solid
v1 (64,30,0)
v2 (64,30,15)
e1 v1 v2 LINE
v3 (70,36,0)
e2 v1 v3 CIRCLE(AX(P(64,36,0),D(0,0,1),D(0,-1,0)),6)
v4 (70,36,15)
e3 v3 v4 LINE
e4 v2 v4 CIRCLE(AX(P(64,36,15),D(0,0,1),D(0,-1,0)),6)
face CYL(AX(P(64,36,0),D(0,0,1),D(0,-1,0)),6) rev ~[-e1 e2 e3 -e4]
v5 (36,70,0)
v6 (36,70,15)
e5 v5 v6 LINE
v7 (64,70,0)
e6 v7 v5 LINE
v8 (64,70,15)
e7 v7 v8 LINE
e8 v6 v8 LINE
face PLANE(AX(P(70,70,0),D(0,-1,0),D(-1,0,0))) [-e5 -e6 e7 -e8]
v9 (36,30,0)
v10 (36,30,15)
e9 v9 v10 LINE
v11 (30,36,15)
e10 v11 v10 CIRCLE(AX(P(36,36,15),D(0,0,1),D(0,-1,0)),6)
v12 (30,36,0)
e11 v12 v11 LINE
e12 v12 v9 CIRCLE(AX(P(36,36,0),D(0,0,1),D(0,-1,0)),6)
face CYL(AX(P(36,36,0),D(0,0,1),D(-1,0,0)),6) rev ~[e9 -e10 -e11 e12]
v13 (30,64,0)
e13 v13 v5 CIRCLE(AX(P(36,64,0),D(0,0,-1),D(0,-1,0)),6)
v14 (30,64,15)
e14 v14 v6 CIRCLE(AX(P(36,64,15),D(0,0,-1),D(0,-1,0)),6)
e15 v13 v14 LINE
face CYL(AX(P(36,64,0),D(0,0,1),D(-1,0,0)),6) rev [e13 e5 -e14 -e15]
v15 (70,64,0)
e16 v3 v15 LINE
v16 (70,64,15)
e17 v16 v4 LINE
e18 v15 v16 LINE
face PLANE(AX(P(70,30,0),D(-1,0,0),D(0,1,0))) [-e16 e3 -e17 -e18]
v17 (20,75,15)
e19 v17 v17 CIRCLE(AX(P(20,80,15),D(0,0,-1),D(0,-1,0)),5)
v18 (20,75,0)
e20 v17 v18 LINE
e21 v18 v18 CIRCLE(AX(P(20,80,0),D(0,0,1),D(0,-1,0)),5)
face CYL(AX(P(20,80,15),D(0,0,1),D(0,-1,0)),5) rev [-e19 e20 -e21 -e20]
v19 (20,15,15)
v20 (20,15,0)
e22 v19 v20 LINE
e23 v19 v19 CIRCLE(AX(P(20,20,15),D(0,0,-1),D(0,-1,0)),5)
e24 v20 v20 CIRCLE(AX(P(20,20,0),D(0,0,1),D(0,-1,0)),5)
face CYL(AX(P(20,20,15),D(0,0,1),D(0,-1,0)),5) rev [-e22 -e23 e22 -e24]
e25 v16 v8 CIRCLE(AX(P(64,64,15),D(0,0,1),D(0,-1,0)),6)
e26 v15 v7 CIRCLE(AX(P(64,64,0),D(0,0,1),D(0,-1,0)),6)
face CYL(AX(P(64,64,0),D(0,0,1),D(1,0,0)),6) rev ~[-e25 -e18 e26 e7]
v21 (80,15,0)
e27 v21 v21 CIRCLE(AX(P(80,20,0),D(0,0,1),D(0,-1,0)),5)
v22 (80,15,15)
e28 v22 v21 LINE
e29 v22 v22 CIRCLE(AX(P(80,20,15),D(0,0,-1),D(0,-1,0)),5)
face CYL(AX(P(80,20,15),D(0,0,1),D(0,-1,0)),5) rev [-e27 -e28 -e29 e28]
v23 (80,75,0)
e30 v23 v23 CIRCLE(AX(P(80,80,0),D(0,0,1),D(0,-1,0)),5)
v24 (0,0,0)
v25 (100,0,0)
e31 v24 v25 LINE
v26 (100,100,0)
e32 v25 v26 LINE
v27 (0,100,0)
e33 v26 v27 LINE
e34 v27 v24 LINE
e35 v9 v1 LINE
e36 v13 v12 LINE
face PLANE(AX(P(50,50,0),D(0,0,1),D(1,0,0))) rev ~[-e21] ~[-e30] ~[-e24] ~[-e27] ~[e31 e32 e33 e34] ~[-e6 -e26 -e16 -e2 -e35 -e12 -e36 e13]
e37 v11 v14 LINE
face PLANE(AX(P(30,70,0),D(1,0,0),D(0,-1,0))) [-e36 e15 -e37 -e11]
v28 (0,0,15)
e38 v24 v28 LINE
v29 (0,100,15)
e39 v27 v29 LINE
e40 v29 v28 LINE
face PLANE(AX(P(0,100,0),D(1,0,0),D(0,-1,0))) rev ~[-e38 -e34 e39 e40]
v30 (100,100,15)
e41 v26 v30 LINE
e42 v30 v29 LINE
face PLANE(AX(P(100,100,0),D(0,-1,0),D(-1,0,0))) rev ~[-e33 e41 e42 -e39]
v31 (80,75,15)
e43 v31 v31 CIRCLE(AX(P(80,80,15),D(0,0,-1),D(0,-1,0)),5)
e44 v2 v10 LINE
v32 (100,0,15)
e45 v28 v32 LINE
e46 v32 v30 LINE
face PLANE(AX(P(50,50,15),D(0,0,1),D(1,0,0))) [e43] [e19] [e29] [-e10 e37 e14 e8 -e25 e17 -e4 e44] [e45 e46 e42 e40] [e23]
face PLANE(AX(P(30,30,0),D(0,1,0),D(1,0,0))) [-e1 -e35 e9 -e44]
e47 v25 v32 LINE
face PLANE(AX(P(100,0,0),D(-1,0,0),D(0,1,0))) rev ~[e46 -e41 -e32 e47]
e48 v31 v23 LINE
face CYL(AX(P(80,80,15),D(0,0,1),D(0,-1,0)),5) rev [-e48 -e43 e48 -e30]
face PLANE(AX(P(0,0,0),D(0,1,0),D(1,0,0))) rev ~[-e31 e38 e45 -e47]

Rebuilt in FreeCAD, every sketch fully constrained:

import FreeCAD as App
import Part
import Sketcher

V = App.Vector
Q = App.Units.Quantity


def edges_at(feature, points):
    """Names of the edges that pass closest to the given points."""
    edges = feature.Shape.Edges
    near = lambda p: min(range(len(edges)), key=lambda i: edges[i].distToShape(Part.Vertex(*p))[0])
    return sorted({f"Edge{near(p) + 1}" for p in points})

doc = App.newDocument("Part")
body = doc.addObject("PartDesign::Body", "Body")

sketch1 = doc.addObject("Sketcher::SketchObject", "Sketch")
body.addObject(sketch1)
sketch1.AttachmentSupport = (doc.XY_Plane, [""])
sketch1.MapMode = "FlatFace"
sketch1.addGeometry(Part.LineSegment(V(0, 100, 0), V(0, 0, 0)), False)
sketch1.addGeometry(Part.LineSegment(V(0, 0, 0), V(100, 0, 0)), False)
sketch1.addGeometry(Part.LineSegment(V(100, 0, 0), V(100, 100, 0)), False)
sketch1.addGeometry(Part.LineSegment(V(100, 100, 0), V(0, 100, 0)), False)
sketch1.addConstraint(Sketcher.Constraint("Coincident", 0, 2, 1, 1))
sketch1.addConstraint(Sketcher.Constraint("Coincident", 1, 2, 2, 1))
sketch1.addConstraint(Sketcher.Constraint("Coincident", 2, 2, 3, 1))
sketch1.addConstraint(Sketcher.Constraint("Coincident", 3, 2, 0, 1))
sketch1.addConstraint(Sketcher.Constraint("Vertical", 0))
sketch1.addConstraint(Sketcher.Constraint("Horizontal", 1))
sketch1.addConstraint(Sketcher.Constraint("Vertical", 2))
sketch1.addConstraint(Sketcher.Constraint("Horizontal", 3))
sketch1.addConstraint(Sketcher.Constraint("Coincident", 0, 2, -1, 1))
sketch1.addConstraint(Sketcher.Constraint("Equal", 3, 0))
sketch1.addConstraint(Sketcher.Constraint("DistanceX", 1, 1, 1, 2, Q("100 mm")))
pad1 = doc.addObject("PartDesign::Pad", "Pad")
body.addObject(pad1)
pad1.Profile = sketch1
pad1.Length = 15

sketch2 = doc.addObject("Sketcher::SketchObject", "Sketch001")
body.addObject(sketch2)
sketch2.AttachmentSupport = (doc.XY_Plane, [""])
sketch2.MapMode = "FlatFace"
sketch2.AttachmentOffset = App.Placement(V(0, 0, 15), App.Rotation())
sketch2.addGeometry(Part.Circle(V(80, 80, 0), V(0, 0, 1), 5), False)
sketch2.addConstraint(Sketcher.Constraint("Diameter", 0, Q("10 mm")))
sketch2.addConstraint(Sketcher.Constraint("DistanceX", -1, 1, 0, 3, Q("80 mm")))
sketch2.addConstraint(Sketcher.Constraint("DistanceY", -1, 1, 0, 3, Q("80 mm")))
doc.recompute()
hole = doc.addObject("PartDesign::Hole", "Hole")
body.addObject(hole)
hole.Profile = sketch2
hole.ThreadType = "None"
hole.Diameter = 10
hole.DepthType = "ThroughAll"

sketch3 = doc.addObject("Sketcher::SketchObject", "Sketch002")
body.addObject(sketch3)
sketch3.AttachmentSupport = (doc.XY_Plane, [""])
sketch3.MapMode = "FlatFace"
sketch3.AttachmentOffset = App.Placement(V(0, 0, 15), App.Rotation())
sketch3.addGeometry(Part.Circle(V(80, 20, 0), V(0, 0, 1), 5), False)
sketch3.addConstraint(Sketcher.Constraint("Diameter", 0, Q("10 mm")))
sketch3.addConstraint(Sketcher.Constraint("DistanceX", -1, 1, 0, 3, Q("80 mm")))
sketch3.addConstraint(Sketcher.Constraint("DistanceY", -1, 1, 0, 3, Q("20 mm")))
doc.recompute()
hole2 = doc.addObject("PartDesign::Hole", "Hole001")
body.addObject(hole2)
hole2.Profile = sketch3
hole2.ThreadType = "None"
hole2.Diameter = 10
hole2.DepthType = "ThroughAll"

sketch4 = doc.addObject("Sketcher::SketchObject", "Sketch003")
body.addObject(sketch4)
sketch4.AttachmentSupport = (doc.XY_Plane, [""])
sketch4.MapMode = "FlatFace"
sketch4.AttachmentOffset = App.Placement(V(0, 0, 15), App.Rotation())
sketch4.addGeometry(Part.Circle(V(20, 20, 0), V(0, 0, 1), 5), False)
sketch4.addConstraint(Sketcher.Constraint("Diameter", 0, Q("10 mm")))
sketch4.addConstraint(Sketcher.Constraint("DistanceX", -1, 1, 0, 3, Q("20 mm")))
sketch4.addConstraint(Sketcher.Constraint("DistanceY", -1, 1, 0, 3, Q("20 mm")))
doc.recompute()
hole3 = doc.addObject("PartDesign::Hole", "Hole002")
body.addObject(hole3)
hole3.Profile = sketch4
hole3.ThreadType = "None"
hole3.Diameter = 10
hole3.DepthType = "ThroughAll"

sketch5 = doc.addObject("Sketcher::SketchObject", "Sketch004")
body.addObject(sketch5)
sketch5.AttachmentSupport = (doc.XY_Plane, [""])
sketch5.MapMode = "FlatFace"
sketch5.AttachmentOffset = App.Placement(V(0, 0, 15), App.Rotation())
sketch5.addGeometry(Part.Circle(V(20, 80, 0), V(0, 0, 1), 5), False)
sketch5.addConstraint(Sketcher.Constraint("Diameter", 0, Q("10 mm")))
sketch5.addConstraint(Sketcher.Constraint("DistanceX", -1, 1, 0, 3, Q("20 mm")))
sketch5.addConstraint(Sketcher.Constraint("DistanceY", -1, 1, 0, 3, Q("80 mm")))
doc.recompute()
hole4 = doc.addObject("PartDesign::Hole", "Hole003")
body.addObject(hole4)
hole4.Profile = sketch5
hole4.ThreadType = "None"
hole4.Diameter = 10
hole4.DepthType = "ThroughAll"

sketch6 = doc.addObject("Sketcher::SketchObject", "Sketch005")
body.addObject(sketch6)
sketch6.AttachmentSupport = (doc.XY_Plane, [""])
sketch6.MapMode = "FlatFace"
sketch6.addGeometry(Part.LineSegment(V(30, 30, 0), V(30, 70, 0)), False)
sketch6.addGeometry(Part.LineSegment(V(30, 70, 0), V(70, 70, 0)), False)
sketch6.addGeometry(Part.LineSegment(V(70, 70, 0), V(70, 30, 0)), False)
sketch6.addGeometry(Part.LineSegment(V(70, 30, 0), V(30, 30, 0)), False)
sketch6.addConstraint(Sketcher.Constraint("Coincident", 0, 2, 1, 1))
sketch6.addConstraint(Sketcher.Constraint("Coincident", 1, 2, 2, 1))
sketch6.addConstraint(Sketcher.Constraint("Coincident", 2, 2, 3, 1))
sketch6.addConstraint(Sketcher.Constraint("Coincident", 3, 2, 0, 1))
sketch6.addConstraint(Sketcher.Constraint("Vertical", 0))
sketch6.addConstraint(Sketcher.Constraint("Horizontal", 1))
sketch6.addConstraint(Sketcher.Constraint("Vertical", 2))
sketch6.addConstraint(Sketcher.Constraint("Horizontal", 3))
sketch6.addConstraint(Sketcher.Constraint("Equal", 3, 0))
sketch6.addConstraint(Sketcher.Constraint("DistanceX", 1, 1, 1, 2, Q("40 mm")))
sketch6.addConstraint(Sketcher.Constraint("DistanceX", -1, 1, 0, 2, Q("30 mm")))
sketch6.addConstraint(Sketcher.Constraint("DistanceY", -1, 1, 0, 2, Q("70 mm")))
pocket1 = doc.addObject("PartDesign::Pocket", "Pocket")
body.addObject(pocket1)
pocket1.Profile = sketch6
pocket1.Type = "ThroughAll"
pocket1.Reversed = True
doc.recompute()

fillet = doc.addObject("PartDesign::Fillet", "Fillet")
body.addObject(fillet)
fillet.Base = (pocket1, edges_at(pocket1, [
    (30, 70, 7.5),
    (70, 70, 7.5),
    (70, 30, 7.5),
    (30, 30, 7.5),
]))
fillet.Radius = 6

doc.recompute()
